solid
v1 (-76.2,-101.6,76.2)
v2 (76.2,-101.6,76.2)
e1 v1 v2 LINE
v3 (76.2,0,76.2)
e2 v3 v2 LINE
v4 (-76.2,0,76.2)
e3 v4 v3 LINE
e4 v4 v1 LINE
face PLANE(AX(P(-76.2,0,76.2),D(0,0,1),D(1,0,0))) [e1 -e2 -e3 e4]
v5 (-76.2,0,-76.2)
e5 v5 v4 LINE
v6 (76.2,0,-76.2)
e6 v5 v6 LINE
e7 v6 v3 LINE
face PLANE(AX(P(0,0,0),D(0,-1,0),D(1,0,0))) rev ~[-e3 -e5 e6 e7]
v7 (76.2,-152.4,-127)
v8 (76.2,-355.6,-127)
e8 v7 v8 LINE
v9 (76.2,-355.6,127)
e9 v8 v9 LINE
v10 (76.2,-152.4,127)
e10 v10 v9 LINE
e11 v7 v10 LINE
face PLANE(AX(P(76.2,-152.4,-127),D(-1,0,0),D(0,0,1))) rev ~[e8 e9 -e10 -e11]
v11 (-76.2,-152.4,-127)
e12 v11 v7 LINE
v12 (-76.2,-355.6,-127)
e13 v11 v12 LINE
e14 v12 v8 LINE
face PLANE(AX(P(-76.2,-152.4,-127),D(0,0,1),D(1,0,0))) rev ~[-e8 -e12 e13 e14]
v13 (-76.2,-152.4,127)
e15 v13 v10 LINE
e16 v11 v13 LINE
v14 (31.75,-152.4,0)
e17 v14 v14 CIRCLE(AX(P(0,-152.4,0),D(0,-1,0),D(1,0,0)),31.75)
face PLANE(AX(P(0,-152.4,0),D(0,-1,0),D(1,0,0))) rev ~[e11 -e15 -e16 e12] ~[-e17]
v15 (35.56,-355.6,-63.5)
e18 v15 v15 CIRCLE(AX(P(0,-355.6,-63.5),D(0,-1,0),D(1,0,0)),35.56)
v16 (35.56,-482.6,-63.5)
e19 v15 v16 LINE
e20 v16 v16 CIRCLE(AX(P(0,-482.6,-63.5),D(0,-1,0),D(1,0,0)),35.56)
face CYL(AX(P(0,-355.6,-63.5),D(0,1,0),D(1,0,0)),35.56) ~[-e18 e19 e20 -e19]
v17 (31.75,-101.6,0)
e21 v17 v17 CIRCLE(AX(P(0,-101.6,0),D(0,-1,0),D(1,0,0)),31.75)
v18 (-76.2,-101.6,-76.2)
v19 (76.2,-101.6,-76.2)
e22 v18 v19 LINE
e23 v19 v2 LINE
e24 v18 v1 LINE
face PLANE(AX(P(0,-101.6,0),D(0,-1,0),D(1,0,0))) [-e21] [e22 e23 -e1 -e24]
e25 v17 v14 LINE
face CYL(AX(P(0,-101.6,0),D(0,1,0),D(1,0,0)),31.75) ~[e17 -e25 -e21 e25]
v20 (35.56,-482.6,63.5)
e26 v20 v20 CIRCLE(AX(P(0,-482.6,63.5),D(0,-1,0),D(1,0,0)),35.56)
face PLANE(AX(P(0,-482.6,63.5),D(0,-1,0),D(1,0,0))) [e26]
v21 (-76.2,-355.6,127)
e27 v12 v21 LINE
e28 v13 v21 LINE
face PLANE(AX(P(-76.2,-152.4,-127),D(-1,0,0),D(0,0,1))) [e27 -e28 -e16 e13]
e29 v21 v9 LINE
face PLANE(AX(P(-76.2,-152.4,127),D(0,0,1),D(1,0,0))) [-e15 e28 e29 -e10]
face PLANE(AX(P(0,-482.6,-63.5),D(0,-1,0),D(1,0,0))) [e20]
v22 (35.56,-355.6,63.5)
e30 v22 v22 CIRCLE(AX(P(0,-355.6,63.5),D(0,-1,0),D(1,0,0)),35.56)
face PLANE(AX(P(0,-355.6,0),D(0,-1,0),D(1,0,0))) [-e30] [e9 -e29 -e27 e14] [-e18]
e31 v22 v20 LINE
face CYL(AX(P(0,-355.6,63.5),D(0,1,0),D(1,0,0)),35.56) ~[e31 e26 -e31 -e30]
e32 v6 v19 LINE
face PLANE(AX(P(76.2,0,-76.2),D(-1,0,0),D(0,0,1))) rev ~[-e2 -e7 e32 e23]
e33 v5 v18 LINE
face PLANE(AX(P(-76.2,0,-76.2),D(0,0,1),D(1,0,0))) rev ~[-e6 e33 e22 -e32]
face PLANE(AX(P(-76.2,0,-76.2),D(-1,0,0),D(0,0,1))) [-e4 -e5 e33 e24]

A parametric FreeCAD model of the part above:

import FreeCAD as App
import Part
import Sketcher
from FreeCAD import Vector
Q = App.Units.Quantity

doc = App.newDocument("Part")
body = doc.addObject("PartDesign::Body", "Body")

sketch1 = doc.addObject("Sketcher::SketchObject", "Sketch")
body.addObject(sketch1)
sketch1.AttachmentSupport = (doc.XZ_Plane, [""])
sketch1.MapMode = "FlatFace"
sketch1.addGeometry([
    Part.LineSegment(Vector(-76.2, 76.2, 0), Vector(-76.2, -76.2, 0)),
    Part.LineSegment(Vector(-76.2, -76.2, 0), Vector(76.2, -76.2, 0)),
    Part.LineSegment(Vector(76.2, -76.2, 0), Vector(76.2, 76.2, 0)),
    Part.LineSegment(Vector(76.2, 76.2, 0), Vector(-76.2, 76.2, 0)),
], False)
sketch1.addConstraint([
    Sketcher.Constraint("Coincident", 0, 2, 1, 1),
    Sketcher.Constraint("Coincident", 1, 2, 2, 1),
    Sketcher.Constraint("Coincident", 2, 2, 3, 1),
    Sketcher.Constraint("Coincident", 3, 2, 0, 1),
    Sketcher.Constraint("Vertical", 0),
    Sketcher.Constraint("Horizontal", 1),
    Sketcher.Constraint("Vertical", 2),
    Sketcher.Constraint("Horizontal", 3),
    Sketcher.Constraint("Symmetric", 0, 2, 2, 2, -1, 1),
    Sketcher.Constraint("Equal", 3, 0),
    Sketcher.Constraint("DistanceX", 1, 1, 1, 2, Q("6 in")),
])
pad1 = doc.addObject("PartDesign::Pad", "Pad")
body.addObject(pad1)
pad1.Profile = sketch1
pad1.Length = Q("4 in")

sketch2 = doc.addObject("Sketcher::SketchObject", "Sketch001")
body.addObject(sketch2)
sketch2.AttachmentSupport = (doc.XZ_Plane, [""])
sketch2.MapMode = "FlatFace"
sketch2.AttachmentOffset = App.Placement(Vector(0, 0, 4 * 25.4), App.Rotation())
sketch2.addGeometry(Part.Circle(Vector(0, 0, 0), Vector(0, 0, 1), 31.75), False)
sketch2.addConstraint([
    Sketcher.Constraint("Coincident", 0, 3, -1, 1),
    Sketcher.Constraint("Diameter", 0, Q("2.5 in")),
])
pad2 = doc.addObject("PartDesign::Pad", "Pad001")
body.addObject(pad2)
pad2.Profile = sketch2
pad2.Length = Q("2 in")

sketch3 = doc.addObject("Sketcher::SketchObject", "Sketch002")
body.addObject(sketch3)
sketch3.AttachmentSupport = (doc.XZ_Plane, [""])
sketch3.MapMode = "FlatFace"
sketch3.AttachmentOffset = App.Placement(Vector(0, 0, 6 * 25.4), App.Rotation())
sketch3.addGeometry([
    Part.LineSegment(Vector(-76.2, 127, 0), Vector(-76.2, -127, 0)),
    Part.LineSegment(Vector(-76.2, -127, 0), Vector(76.2, -127, 0)),
    Part.LineSegment(Vector(76.2, -127, 0), Vector(76.2, 127, 0)),
    Part.LineSegment(Vector(76.2, 127, 0), Vector(-76.2, 127, 0)),
], False)
sketch3.addConstraint([
    Sketcher.Constraint("Coincident", 0, 2, 1, 1),
    Sketcher.Constraint("Coincident", 1, 2, 2, 1),
    Sketcher.Constraint("Coincident", 2, 2, 3, 1),
    Sketcher.Constraint("Coincident", 3, 2, 0, 1),
    Sketcher.Constraint("Vertical", 0),
    Sketcher.Constraint("Horizontal", 1),
    Sketcher.Constraint("Vertical", 2),
    Sketcher.Constraint("Horizontal", 3),
    Sketcher.Constraint("Symmetric", 0, 2, 2, 2, -1, 1),
    Sketcher.Constraint("DistanceX", 1, 1, 1, 2, Q("6 in")),
    Sketcher.Constraint("DistanceY", 0, 2, 0, 1, Q("10 in")),
])
pad3 = doc.addObject("PartDesign::Pad", "Pad002")
body.addObject(pad3)
pad3.Profile = sketch3
pad3.Length = Q("8 in")

sketch4 = doc.addObject("Sketcher::SketchObject", "Sketch003")
body.addObject(sketch4)
sketch4.AttachmentSupport = (doc.XZ_Plane, [""])
sketch4.MapMode = "FlatFace"
sketch4.AttachmentOffset = App.Placement(Vector(0, 0, 14 * 25.4), App.Rotation())
sketch4.addGeometry([
    Part.Circle(Vector(0, -63.5, 0), Vector(0, 0, 1), 35.56),
    Part.Circle(Vector(0, 63.5, 0), Vector(0, 0, 1), 35.56),
], False)
sketch4.addConstraint([
    Sketcher.Constraint("Equal", 0, 1),
    Sketcher.Constraint("Symmetric", 0, 3, 1, 3, -1, 1),
    Sketcher.Constraint("PointOnObject", 0, 3, -2),
    Sketcher.Constraint("Diameter", 0, Q("2.8 in")),
    Sketcher.Constraint("DistanceY", 0, 3, 1, 3, Q("5 in")),
])
pad4 = doc.addObject("PartDesign::Pad", "Pad003")
body.addObject(pad4)
pad4.Profile = sketch4
pad4.Length = Q("5 in")

doc.recompute()
